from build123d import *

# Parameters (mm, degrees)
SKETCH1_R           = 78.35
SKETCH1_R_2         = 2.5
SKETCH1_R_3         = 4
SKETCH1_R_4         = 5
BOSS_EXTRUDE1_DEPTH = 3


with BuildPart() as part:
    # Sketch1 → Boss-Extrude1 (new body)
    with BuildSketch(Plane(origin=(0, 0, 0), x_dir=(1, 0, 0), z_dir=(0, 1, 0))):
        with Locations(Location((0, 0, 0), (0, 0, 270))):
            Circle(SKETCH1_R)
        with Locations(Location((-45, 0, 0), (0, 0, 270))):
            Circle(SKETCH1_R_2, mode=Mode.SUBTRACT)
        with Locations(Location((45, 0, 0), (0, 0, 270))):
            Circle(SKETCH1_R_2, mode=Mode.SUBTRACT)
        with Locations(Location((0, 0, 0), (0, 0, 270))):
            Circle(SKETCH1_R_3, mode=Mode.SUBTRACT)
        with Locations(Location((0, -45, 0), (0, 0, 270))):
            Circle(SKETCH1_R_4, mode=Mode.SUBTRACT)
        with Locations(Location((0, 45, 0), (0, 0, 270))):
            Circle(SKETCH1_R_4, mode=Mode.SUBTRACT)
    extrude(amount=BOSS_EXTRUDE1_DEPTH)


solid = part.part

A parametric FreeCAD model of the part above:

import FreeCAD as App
import Part
import Sketcher
from FreeCAD import Vector

doc = App.newDocument("Part")
body = doc.addObject("PartDesign::Body", "Body")

sketch1 = doc.addObject("Sketcher::SketchObject", "Sketch")
body.addObject(sketch1)
sketch1.AttachmentSupport = (doc.XZ_Plane, [""])
sketch1.MapMode = "FlatFace"
sketch1.addGeometry([
    Part.Circle(Vector(0, 0, 0), Vector(0, 0, 1), 78.3),
    Part.Circle(Vector(0, -45, 0), Vector(0, 0, 1), 5),
    Part.Circle(Vector(-45, 0, 0), Vector(0, 0, 1), 2.5),
    Part.Circle(Vector(45, 0, 0), Vector(0, 0, 1), 2.5),
    Part.Circle(Vector(0, 0, 0), Vector(0, 0, 1), 4),
    Part.Circle(Vector(0, 45, 0), Vector(0, 0, 1), 5),
], False)
sketch1.addConstraint([
    Sketcher.Constraint("Coincident", 0, 3, -1, 1),
    Sketcher.Constraint("Coincident", 4, 3, -1, 1),
    Sketcher.Constraint("Equal", 2, 3),
    Sketcher.Constraint("Equal", 1, 5),
    Sketcher.Constraint("Symmetric", 2, 3, 3, 3, -1, 1),
    Sketcher.Constraint("Symmetric", 1, 3, 5, 3, -1, 1),
    Sketcher.Constraint("PointOnObject", 1, 3, -2),
    Sketcher.Constraint("PointOnObject", 2, 3, -1),
    Sketcher.Constraint("Diameter", 1, 10.0),
    Sketcher.Constraint("Diameter", 2, 5.0),
    Sketcher.Constraint("Diameter", 4, 8.0),
    Sketcher.Constraint("Diameter", 0, 156.7),
    Sketcher.Constraint("DistanceY", 1, 3, -1, 1, 45.0),
    Sketcher.Constraint("DistanceX", 2, 3, -1, 1, 45.0),
])
pad1 = doc.addObject("PartDesign::Pad", "Pad")
body.addObject(pad1)
pad1.Profile = sketch1
pad1.Length = 3
pad1.Reversed = True

doc.recompute()
